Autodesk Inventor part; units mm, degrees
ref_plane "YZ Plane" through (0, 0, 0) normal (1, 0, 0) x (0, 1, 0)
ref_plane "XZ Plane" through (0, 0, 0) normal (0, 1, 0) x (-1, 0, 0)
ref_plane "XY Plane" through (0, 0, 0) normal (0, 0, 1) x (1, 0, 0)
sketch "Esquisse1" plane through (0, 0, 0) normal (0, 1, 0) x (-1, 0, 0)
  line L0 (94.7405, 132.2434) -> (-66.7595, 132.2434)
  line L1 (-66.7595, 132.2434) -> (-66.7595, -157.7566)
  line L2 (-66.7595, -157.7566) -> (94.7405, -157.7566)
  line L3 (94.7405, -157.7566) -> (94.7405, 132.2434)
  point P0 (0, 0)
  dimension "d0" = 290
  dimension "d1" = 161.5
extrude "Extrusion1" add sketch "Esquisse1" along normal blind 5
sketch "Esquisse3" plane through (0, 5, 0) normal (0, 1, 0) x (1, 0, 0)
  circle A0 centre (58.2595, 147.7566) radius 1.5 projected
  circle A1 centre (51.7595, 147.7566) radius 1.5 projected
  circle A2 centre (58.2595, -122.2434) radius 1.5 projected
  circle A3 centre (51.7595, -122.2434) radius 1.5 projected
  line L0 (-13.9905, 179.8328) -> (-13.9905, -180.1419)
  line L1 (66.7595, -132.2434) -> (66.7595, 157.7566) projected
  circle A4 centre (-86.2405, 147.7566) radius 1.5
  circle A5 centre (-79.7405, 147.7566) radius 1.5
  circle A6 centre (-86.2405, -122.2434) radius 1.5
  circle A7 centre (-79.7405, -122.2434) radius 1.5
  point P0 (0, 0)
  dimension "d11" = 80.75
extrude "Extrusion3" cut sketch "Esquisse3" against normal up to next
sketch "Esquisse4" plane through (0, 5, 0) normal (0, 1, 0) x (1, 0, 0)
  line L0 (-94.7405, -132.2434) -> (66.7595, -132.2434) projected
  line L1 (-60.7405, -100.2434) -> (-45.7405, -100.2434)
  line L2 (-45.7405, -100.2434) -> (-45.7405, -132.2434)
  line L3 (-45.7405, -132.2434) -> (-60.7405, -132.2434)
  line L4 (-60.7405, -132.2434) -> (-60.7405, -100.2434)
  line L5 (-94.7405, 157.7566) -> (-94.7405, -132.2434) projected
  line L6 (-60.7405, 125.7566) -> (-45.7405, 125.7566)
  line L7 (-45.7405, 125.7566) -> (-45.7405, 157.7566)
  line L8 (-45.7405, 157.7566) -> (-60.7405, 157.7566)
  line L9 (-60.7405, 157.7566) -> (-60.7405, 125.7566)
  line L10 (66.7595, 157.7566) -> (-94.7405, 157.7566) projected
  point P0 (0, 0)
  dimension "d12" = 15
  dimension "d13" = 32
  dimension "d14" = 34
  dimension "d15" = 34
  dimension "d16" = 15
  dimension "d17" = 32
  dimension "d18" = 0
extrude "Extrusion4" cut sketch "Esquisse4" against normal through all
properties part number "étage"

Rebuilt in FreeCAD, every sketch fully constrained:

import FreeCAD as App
import Part
import Sketcher

V = App.Vector
Q = App.Units.Quantity

doc = App.newDocument("Part")
params = doc.addObject("Spreadsheet::Sheet", "Params")
for row, (alias, value) in enumerate([
    ("sketch1_height", "290 mm"),
    ("sketch1_width", "161.5 mm"),
    ("pad1_length", "5 mm"),
    ("sketch2_diameter", "3 mm"),
    ("pocket1_length", "5 mm"),
    ("sketch3_width", "15 mm"),
    ("sketch3_height", "32 mm"),
], start=1):
    params.set(f"A{row}", alias)
    params.set(f"B{row}", "=" + value)
    params.setAlias(f"B{row}", alias)

body = doc.addObject("PartDesign::Body", "Body")

# Sketch on XZ plane
sketch1 = body.newObject("Sketcher::SketchObject", "Sketch")
sketch1.AttachmentSupport = (doc.getObject("XZ_Plane"), [""])
sketch1.MapMode = "FlatFace"
sketch1.addGeometry(Part.LineSegment(V(-94.7405, -157.7566, 0), V(-94.7405, 132.2434, 0)), False)
sketch1.addGeometry(Part.LineSegment(V(-94.7405, 132.2434, 0), V(66.7595, 132.2434, 0)), False)
sketch1.addGeometry(Part.LineSegment(V(66.7595, 132.2434, 0), V(66.7595, -157.7566, 0)), False)
sketch1.addGeometry(Part.LineSegment(V(66.7595, -157.7566, 0), V(-94.7405, -157.7566, 0)), False)
sketch1.addConstraint(Sketcher.Constraint("Coincident", 0, 2, 1, 1))
sketch1.addConstraint(Sketcher.Constraint("Coincident", 1, 2, 2, 1))
sketch1.addConstraint(Sketcher.Constraint("Coincident", 2, 2, 3, 1))
sketch1.addConstraint(Sketcher.Constraint("Coincident", 3, 2, 0, 1))
sketch1.addConstraint(Sketcher.Constraint("Vertical", 0))
sketch1.addConstraint(Sketcher.Constraint("Horizontal", 1))
sketch1.addConstraint(Sketcher.Constraint("Vertical", 2))
sketch1.addConstraint(Sketcher.Constraint("Horizontal", 3))
sketch1.addConstraint(Sketcher.Constraint("DistanceY", 0, 1, 0, 2, Q("290 mm")))
sketch1.addConstraint(Sketcher.Constraint("DistanceX", 1, 1, 1, 2, Q("161.5 mm")))
sketch1.addConstraint(Sketcher.Constraint("DistanceX", 0, 2, -1, 1, Q("94.7405 mm")))
sketch1.addConstraint(Sketcher.Constraint("DistanceY", -1, 1, 0, 2, Q("132.2434 mm")))
sketch1.setExpression("Constraints[8]", "Params.sketch1_height")
sketch1.setExpression("Constraints[9]", "Params.sketch1_width")
pad1 = body.newObject("PartDesign::Pad", "Pad")
pad1.Profile = sketch1
pad1.setExpression("Length", "Params.pad1_length")
pad1.Reversed = True

# Sketch on XZ plane
sketch2 = body.newObject("Sketcher::SketchObject", "Sketch001")
sketch2.AttachmentSupport = (doc.getObject("XZ_Plane"), [""])
sketch2.MapMode = "FlatFace"
sketch2.AttachmentOffset = App.Placement(V(0, 0, -5), App.Rotation())
sketch2.addGeometry(Part.Circle(V(58.2595, -147.7566, 0), V(0, 0, 1), 1.5), False)
sketch2.addGeometry(Part.Circle(V(51.7595, -147.7566, 0), V(0, 0, 1), 1.5), False)
sketch2.addGeometry(Part.Circle(V(58.2595, 122.2434, 0), V(0, 0, 1), 1.5), False)
sketch2.addGeometry(Part.Circle(V(51.7595, 122.2434, 0), V(0, 0, 1), 1.5), False)
sketch2.addGeometry(Part.Circle(V(-86.2405, -147.7566, 0), V(0, 0, 1), 1.5), False)
sketch2.addGeometry(Part.Circle(V(-79.7405, -147.7566, 0), V(0, 0, 1), 1.5), False)
sketch2.addGeometry(Part.Circle(V(-86.2405, 122.2434, 0), V(0, 0, 1), 1.5), False)
sketch2.addGeometry(Part.Circle(V(-79.7405, 122.2434, 0), V(0, 0, 1), 1.5), False)
sketch2.addConstraint(Sketcher.Constraint("Equal", 0, 1))
sketch2.addConstraint(Sketcher.Constraint("Equal", 1, 2))
sketch2.addConstraint(Sketcher.Constraint("Equal", 2, 3))
sketch2.addConstraint(Sketcher.Constraint("Equal", 3, 4))
sketch2.addConstraint(Sketcher.Constraint("Equal", 4, 5))
sketch2.addConstraint(Sketcher.Constraint("Equal", 5, 6))
sketch2.addConstraint(Sketcher.Constraint("Equal", 6, 7))
sketch2.addConstraint(Sketcher.Constraint("Horizontal", 0, 3, 1, 3))
sketch2.addConstraint(Sketcher.Constraint("Horizontal", 2, 3, 3, 3))
sketch2.addConstraint(Sketcher.Constraint("Horizontal", 1, 3, 4, 3))
sketch2.addConstraint(Sketcher.Constraint("Horizontal", 4, 3, 5, 3))
sketch2.addConstraint(Sketcher.Constraint("Horizontal", 3, 3, 6, 3))
sketch2.addConstraint(Sketcher.Constraint("Horizontal", 6, 3, 7, 3))
sketch2.addConstraint(Sketcher.Constraint("Vertical", 0, 3, 2, 3))
sketch2.addConstraint(Sketcher.Constraint("Vertical", 1, 3, 3, 3))
sketch2.addConstraint(Sketcher.Constraint("Vertical", 4, 3, 6, 3))
sketch2.addConstraint(Sketcher.Constraint("Vertical", 5, 3, 7, 3))
sketch2.addConstraint(Sketcher.Constraint("Diameter", 0, Q("3 mm")))
sketch2.addConstraint(Sketcher.Constraint("DistanceY", 0, 3, 2, 3, Q("270 mm")))
sketch2.addConstraint(Sketcher.Constraint("DistanceX", 4, 3, 1, 3, Q("138 mm")))
sketch2.addConstraint(Sketcher.Constraint("DistanceX", 5, 3, 0, 3, Q("138 mm")))
sketch2.addConstraint(Sketcher.Constraint("DistanceX", 1, 3, 0, 3, Q("6.5 mm")))
sketch2.addConstraint(Sketcher.Constraint("DistanceX", -1, 1, 0, 3, Q("58.2595 mm")))
sketch2.addConstraint(Sketcher.Constraint("DistanceY", 0, 3, -1, 1, Q("147.7566 mm")))
sketch2.setExpression("Constraints[17]", "Params.sketch2_diameter")
pocket1 = body.newObject("PartDesign::Pocket", "Pocket")
pocket1.Profile = sketch2
pocket1.setExpression("Length", "Params.pocket1_length")
pocket1.Reversed = True

# Sketch on XZ plane
sketch3 = body.newObject("Sketcher::SketchObject", "Sketch002")
sketch3.AttachmentSupport = (doc.getObject("XZ_Plane"), [""])
sketch3.MapMode = "FlatFace"
sketch3.AttachmentOffset = App.Placement(V(0, 0, -5), App.Rotation())
sketch3.addGeometry(Part.LineSegment(V(-60.7405, 100.2434, 0), V(-60.7405, 132.2434, 0)), False)
sketch3.addGeometry(Part.LineSegment(V(-60.7405, 132.2434, 0), V(-45.7405, 132.2434, 0)), False)
sketch3.addGeometry(Part.LineSegment(V(-45.7405, 132.2434, 0), V(-45.7405, 100.2434, 0)), False)
sketch3.addGeometry(Part.LineSegment(V(-45.7405, 100.2434, 0), V(-60.7405, 100.2434, 0)), False)
sketch3.addGeometry(Part.LineSegment(V(-45.7405, -157.7566, 0), V(-60.7405, -157.7566, 0)), False)
sketch3.addGeometry(Part.LineSegment(V(-60.7405, -157.7566, 0), V(-60.7405, -125.7566, 0)), False)
sketch3.addGeometry(Part.LineSegment(V(-60.7405, -125.7566, 0), V(-45.7405, -125.7566, 0)), False)
sketch3.addGeometry(Part.LineSegment(V(-45.7405, -125.7566, 0), V(-45.7405, -157.7566, 0)), False)
sketch3.addConstraint(Sketcher.Constraint("Coincident", 0, 2, 1, 1))
sketch3.addConstraint(Sketcher.Constraint("Coincident", 1, 2, 2, 1))
sketch3.addConstraint(Sketcher.Constraint("Coincident", 2, 2, 3, 1))
sketch3.addConstraint(Sketcher.Constraint("Coincident", 3, 2, 0, 1))
sketch3.addConstraint(Sketcher.Constraint("Coincident", 4, 2, 5, 1))
sketch3.addConstraint(Sketcher.Constraint("Coincident", 5, 2, 6, 1))
sketch3.addConstraint(Sketcher.Constraint("Coincident", 6, 2, 7, 1))
sketch3.addConstraint(Sketcher.Constraint("Coincident", 7, 2, 4, 1))
sketch3.addConstraint(Sketcher.Constraint("Vertical", 0))
sketch3.addConstraint(Sketcher.Constraint("Horizontal", 1))
sketch3.addConstraint(Sketcher.Constraint("Vertical", 2))
sketch3.addConstraint(Sketcher.Constraint("Horizontal", 3))
sketch3.addConstraint(Sketcher.Constraint("Horizontal", 4))
sketch3.addConstraint(Sketcher.Constraint("Vertical", 5))
sketch3.addConstraint(Sketcher.Constraint("Horizontal", 6))
sketch3.addConstraint(Sketcher.Constraint("Vertical", 7))
sketch3.addConstraint(Sketcher.Constraint("Vertical", 3, 2, 4, 2))
sketch3.addConstraint(Sketcher.Constraint("Vertical", 2, 2, 6, 2))
sketch3.addConstraint(Sketcher.Constraint("Equal", 2, 5))
sketch3.addConstraint(Sketcher.Constraint("DistanceX", 1, 1, 1, 2, Q("15 mm")))
sketch3.addConstraint(Sketcher.Constraint("DistanceY", 0, 1, 0, 2, Q("32 mm")))
sketch3.addConstraint(Sketcher.Constraint("DistanceY", 4, 2, 3, 2, Q("258 mm")))
sketch3.addConstraint(Sketcher.Constraint("DistanceX", 0, 2, -1, 1, Q("60.7405 mm")))
sketch3.addConstraint(Sketcher.Constraint("DistanceY", -1, 1, 0, 2, Q("132.2434 mm")))
sketch3.setExpression("Constraints[19]", "Params.sketch3_width")
sketch3.setExpression("Constraints[20]", "Params.sketch3_height")
pocket2 = body.newObject("PartDesign::Pocket", "Pocket001")
pocket2.Profile = sketch3
pocket2.Type = "ThroughAll"
pocket2.Reversed = True

doc.recompute()
